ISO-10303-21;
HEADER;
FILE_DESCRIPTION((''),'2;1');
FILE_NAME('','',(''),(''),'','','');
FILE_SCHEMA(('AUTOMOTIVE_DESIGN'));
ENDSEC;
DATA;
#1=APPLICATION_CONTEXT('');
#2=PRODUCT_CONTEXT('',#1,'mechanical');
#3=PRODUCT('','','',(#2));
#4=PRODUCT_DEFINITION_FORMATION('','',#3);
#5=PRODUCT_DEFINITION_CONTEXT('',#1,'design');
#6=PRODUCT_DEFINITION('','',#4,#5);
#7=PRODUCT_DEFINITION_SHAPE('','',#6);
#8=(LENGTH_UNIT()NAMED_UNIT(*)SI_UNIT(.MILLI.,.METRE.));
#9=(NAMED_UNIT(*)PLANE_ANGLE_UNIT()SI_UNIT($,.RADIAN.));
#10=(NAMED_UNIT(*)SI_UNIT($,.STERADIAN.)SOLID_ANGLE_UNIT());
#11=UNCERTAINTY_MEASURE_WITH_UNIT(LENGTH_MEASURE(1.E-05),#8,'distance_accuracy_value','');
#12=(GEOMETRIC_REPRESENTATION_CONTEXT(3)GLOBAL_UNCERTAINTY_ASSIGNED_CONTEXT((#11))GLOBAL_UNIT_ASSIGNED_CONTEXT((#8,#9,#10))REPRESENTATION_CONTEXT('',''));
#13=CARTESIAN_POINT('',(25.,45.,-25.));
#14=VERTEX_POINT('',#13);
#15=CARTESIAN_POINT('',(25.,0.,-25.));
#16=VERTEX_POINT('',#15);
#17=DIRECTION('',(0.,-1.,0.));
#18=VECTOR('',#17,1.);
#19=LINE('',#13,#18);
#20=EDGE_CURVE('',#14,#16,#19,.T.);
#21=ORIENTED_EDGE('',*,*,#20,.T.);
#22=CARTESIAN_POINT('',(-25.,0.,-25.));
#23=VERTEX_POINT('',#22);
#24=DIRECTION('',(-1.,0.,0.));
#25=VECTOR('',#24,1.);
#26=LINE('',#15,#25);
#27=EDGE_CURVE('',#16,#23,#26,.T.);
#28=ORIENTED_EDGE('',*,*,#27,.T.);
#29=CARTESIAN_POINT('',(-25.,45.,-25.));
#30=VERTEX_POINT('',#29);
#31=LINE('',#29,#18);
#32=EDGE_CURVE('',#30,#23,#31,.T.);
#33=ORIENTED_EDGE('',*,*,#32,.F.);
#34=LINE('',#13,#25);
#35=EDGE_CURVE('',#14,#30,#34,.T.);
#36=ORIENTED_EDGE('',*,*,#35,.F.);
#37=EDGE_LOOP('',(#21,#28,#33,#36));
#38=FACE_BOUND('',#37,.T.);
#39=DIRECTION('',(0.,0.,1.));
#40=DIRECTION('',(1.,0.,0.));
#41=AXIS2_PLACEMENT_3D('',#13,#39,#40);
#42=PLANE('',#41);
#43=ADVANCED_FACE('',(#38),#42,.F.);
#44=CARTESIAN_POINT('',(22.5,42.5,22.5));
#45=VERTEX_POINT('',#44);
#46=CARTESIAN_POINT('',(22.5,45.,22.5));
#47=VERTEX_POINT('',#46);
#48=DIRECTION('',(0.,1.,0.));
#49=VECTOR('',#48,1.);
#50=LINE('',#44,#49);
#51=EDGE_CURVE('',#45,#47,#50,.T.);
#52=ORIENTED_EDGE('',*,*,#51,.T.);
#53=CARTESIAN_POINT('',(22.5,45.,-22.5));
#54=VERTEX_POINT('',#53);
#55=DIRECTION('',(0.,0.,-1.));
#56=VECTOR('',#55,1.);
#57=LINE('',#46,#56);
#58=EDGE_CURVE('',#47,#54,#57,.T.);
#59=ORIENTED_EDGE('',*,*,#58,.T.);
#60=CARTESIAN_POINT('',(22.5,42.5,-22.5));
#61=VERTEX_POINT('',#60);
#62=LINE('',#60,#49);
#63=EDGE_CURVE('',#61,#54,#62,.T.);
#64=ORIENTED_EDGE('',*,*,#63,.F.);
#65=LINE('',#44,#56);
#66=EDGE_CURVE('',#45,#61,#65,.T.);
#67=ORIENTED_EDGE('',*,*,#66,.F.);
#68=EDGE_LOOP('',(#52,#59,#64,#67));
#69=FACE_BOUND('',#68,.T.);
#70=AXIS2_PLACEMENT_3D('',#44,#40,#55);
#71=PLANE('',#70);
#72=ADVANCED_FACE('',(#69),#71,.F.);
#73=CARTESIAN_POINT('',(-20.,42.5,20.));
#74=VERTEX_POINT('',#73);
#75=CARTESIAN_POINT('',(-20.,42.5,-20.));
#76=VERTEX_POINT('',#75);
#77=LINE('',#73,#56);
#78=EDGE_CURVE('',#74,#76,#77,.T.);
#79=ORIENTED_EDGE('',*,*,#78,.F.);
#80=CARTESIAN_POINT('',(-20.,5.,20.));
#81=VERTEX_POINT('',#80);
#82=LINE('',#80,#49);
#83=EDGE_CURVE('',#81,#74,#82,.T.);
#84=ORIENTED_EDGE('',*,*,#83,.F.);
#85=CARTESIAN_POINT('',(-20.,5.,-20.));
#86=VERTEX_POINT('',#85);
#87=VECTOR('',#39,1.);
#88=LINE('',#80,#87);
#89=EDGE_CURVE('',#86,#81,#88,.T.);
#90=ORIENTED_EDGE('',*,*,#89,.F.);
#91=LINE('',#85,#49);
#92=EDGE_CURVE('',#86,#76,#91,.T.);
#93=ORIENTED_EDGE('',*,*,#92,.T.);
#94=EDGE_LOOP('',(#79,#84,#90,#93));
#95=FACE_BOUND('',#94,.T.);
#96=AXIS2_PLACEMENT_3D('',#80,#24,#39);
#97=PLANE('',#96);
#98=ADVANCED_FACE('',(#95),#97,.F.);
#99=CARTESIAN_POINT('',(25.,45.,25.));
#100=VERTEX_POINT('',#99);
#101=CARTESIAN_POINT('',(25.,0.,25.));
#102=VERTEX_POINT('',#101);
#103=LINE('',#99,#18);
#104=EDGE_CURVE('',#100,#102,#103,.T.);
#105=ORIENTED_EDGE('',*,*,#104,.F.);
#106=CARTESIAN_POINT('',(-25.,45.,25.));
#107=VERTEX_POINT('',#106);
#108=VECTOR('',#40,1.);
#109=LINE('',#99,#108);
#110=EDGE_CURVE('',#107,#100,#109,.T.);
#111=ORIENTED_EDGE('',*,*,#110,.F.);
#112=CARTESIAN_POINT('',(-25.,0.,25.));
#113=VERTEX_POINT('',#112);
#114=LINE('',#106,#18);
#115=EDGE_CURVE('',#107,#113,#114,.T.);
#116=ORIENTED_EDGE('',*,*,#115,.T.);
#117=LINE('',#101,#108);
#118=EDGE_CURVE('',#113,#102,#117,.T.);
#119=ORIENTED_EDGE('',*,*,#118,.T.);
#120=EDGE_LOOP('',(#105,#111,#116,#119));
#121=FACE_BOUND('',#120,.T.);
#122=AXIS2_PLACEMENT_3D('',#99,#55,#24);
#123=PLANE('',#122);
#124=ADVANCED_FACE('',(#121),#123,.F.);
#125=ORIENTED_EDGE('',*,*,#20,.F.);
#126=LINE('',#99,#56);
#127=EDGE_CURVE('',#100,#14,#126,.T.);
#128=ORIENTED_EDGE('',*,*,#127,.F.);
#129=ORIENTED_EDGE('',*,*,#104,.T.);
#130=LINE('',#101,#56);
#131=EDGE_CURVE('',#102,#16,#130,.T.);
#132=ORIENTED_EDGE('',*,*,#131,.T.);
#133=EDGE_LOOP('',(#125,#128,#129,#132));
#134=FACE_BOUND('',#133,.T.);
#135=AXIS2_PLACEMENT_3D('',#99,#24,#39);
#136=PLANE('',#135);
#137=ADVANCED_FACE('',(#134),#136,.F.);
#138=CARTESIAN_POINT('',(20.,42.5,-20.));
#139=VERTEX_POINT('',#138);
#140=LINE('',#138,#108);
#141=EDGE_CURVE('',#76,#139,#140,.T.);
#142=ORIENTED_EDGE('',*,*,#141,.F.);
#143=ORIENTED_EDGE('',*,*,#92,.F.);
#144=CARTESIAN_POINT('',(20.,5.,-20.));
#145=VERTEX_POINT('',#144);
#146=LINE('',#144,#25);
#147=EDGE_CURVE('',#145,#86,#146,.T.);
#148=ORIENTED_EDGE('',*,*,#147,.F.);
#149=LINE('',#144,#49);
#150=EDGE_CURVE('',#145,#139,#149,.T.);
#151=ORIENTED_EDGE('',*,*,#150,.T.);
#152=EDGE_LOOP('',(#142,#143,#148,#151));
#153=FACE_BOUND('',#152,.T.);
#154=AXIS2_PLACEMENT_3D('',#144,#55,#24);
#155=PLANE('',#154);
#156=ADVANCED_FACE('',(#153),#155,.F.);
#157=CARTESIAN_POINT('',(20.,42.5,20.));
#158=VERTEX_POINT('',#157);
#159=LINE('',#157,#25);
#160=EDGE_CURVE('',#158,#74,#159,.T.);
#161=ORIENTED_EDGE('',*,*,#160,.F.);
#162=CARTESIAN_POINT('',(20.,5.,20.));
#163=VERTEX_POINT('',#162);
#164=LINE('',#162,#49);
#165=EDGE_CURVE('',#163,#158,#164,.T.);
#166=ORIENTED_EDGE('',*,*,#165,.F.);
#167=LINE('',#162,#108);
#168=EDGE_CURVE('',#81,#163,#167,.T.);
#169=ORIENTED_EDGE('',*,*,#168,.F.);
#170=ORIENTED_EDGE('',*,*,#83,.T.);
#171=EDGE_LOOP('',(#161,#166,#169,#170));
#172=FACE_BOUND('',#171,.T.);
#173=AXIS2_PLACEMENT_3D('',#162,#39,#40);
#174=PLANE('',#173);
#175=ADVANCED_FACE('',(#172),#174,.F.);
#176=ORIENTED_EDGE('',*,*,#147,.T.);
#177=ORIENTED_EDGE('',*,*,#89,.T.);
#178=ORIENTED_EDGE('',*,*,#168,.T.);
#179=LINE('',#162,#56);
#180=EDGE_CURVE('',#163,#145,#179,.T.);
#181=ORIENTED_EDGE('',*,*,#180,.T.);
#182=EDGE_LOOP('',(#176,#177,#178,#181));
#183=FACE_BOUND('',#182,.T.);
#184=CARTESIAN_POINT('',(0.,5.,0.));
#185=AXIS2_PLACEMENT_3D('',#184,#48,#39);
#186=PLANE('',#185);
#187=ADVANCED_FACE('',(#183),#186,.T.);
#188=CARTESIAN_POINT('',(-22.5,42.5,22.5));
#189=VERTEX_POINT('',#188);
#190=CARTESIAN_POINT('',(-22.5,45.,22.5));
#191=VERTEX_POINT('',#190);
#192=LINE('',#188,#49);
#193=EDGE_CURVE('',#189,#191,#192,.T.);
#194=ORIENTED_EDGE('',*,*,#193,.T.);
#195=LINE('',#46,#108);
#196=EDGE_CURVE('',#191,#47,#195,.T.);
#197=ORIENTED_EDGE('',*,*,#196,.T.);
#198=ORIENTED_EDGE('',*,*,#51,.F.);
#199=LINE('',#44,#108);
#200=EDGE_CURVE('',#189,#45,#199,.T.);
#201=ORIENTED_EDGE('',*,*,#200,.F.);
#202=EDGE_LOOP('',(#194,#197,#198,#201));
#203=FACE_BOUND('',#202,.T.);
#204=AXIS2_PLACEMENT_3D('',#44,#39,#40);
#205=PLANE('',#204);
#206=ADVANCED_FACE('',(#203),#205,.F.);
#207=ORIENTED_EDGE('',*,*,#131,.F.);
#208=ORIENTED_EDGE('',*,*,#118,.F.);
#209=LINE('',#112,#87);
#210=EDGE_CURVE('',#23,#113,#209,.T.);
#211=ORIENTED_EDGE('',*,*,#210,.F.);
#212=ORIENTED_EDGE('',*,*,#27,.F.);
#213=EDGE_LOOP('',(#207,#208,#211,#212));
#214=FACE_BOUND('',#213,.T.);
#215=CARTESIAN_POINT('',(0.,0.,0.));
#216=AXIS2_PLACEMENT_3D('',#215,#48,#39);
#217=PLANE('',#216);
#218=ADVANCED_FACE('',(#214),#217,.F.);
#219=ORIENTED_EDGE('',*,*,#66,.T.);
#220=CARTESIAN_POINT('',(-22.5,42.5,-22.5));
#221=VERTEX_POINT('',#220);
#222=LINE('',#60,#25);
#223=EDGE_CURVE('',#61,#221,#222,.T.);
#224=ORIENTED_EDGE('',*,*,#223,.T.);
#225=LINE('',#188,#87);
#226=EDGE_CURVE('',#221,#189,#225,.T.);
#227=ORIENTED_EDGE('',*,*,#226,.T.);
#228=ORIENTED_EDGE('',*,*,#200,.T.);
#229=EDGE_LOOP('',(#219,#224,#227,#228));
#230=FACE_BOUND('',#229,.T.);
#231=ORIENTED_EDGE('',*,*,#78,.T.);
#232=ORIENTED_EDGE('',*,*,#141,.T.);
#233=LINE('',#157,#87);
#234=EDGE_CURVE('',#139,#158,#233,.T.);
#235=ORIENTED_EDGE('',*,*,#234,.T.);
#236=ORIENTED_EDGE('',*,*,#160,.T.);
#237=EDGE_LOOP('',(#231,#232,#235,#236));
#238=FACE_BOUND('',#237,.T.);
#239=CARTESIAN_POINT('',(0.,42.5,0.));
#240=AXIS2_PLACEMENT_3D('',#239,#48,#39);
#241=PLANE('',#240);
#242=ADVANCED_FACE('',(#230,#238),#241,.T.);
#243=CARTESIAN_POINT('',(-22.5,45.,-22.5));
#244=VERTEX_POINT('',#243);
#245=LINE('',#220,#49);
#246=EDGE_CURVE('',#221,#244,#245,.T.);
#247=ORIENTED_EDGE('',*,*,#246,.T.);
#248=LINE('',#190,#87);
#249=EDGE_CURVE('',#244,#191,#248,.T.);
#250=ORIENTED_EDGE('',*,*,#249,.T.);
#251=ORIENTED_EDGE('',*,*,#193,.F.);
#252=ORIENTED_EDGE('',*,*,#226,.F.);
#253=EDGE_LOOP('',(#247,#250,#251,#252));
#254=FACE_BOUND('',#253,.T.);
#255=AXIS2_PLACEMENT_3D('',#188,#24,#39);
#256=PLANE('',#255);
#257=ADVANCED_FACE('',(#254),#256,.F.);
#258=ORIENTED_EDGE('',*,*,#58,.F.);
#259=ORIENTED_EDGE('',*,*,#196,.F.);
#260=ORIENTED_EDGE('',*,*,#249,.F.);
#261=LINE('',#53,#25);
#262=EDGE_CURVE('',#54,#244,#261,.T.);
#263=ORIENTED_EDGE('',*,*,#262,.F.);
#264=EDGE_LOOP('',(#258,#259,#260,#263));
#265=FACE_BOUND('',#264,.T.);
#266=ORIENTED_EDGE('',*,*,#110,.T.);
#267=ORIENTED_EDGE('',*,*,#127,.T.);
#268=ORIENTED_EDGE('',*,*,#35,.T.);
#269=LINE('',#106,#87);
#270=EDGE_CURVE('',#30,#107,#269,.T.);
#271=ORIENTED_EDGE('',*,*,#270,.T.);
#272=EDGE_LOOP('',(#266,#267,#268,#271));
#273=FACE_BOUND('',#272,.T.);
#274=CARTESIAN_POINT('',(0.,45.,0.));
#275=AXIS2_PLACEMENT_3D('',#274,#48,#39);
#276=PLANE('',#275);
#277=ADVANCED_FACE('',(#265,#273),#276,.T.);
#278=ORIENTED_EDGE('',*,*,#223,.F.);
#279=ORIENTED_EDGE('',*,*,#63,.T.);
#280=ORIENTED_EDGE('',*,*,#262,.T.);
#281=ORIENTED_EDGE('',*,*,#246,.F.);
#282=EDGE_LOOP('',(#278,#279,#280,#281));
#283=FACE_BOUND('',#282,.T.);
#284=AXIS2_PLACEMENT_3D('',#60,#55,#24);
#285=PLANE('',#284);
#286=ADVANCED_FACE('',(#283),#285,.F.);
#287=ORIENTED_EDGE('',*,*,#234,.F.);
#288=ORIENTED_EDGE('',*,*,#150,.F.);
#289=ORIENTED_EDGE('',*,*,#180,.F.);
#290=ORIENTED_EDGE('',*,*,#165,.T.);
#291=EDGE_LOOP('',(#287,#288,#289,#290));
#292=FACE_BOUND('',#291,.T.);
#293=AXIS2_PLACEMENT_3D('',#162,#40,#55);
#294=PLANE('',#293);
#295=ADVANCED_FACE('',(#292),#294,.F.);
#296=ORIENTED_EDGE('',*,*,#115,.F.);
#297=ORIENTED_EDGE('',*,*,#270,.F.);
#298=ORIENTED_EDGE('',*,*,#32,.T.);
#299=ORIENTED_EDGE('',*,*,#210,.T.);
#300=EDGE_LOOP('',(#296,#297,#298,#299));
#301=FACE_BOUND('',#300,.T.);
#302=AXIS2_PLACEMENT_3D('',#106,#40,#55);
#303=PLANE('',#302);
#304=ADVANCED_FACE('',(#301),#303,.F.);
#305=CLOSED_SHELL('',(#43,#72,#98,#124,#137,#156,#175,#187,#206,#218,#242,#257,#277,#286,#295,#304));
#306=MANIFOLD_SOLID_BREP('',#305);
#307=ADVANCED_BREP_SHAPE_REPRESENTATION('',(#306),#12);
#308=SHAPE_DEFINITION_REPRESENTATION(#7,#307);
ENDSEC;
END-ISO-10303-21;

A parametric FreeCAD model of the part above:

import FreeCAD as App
import Part
import Sketcher
from FreeCAD import Vector
Q = App.Units.Quantity


def add_polygon(sketch, points):
    """Adds a closed chain of lines whose ends are joined by coincident constraints."""
    first, n = sketch.GeometryCount, len(points)
    for a, b in zip(points, points[1:] + points[:1]):
        sketch.addGeometry(Part.LineSegment(App.Vector(*a, 0), App.Vector(*b, 0)), False)
    for i in range(n):
        sketch.addConstraint(Sketcher.Constraint("Coincident", first + i, 2, first + (i + 1) % n, 1))

doc = App.newDocument("Part")
body = doc.addObject("PartDesign::Body", "Body")

# Sketch on XZ plane
sketch1 = body.newObject("Sketcher::SketchObject", "Sketch")
sketch1.AttachmentSupport = (doc.getObject("XZ_Plane"), [""])
sketch1.MapMode = "FlatFace"
add_polygon(sketch1, [(-25, -25), (-25, 25), (25, 25), (25, -25)])  # lines 0-3
sketch1.addConstraint(Sketcher.Constraint("Vertical", 0))
sketch1.addConstraint(Sketcher.Constraint("Horizontal", 1))
sketch1.addConstraint(Sketcher.Constraint("Vertical", 2))
sketch1.addConstraint(Sketcher.Constraint("Horizontal", 3))
sketch1.addConstraint(Sketcher.Constraint("Symmetric", 0, 2, 2, 2, -1, 1))
sketch1.addConstraint(Sketcher.Constraint("Equal", 3, 0))
sketch1.addConstraint(Sketcher.Constraint("DistanceX", 1, 1, 1, 2, Q("50 mm")))
pad1 = body.newObject("PartDesign::Pad", "Pad")
pad1.Profile = sketch1
pad1.Length = 45
pad1.Reversed = True

# Sketch on XZ plane
sketch2 = body.newObject("Sketcher::SketchObject", "Sketch001")
sketch2.AttachmentSupport = (doc.getObject("XZ_Plane"), [""])
sketch2.MapMode = "FlatFace"
sketch2.AttachmentOffset = App.Placement(Vector(0, 0, -45), App.Rotation())
add_polygon(sketch2, [(-20, -20), (-20, 20), (20, 20), (20, -20)])  # lines 0-3
sketch2.addConstraint(Sketcher.Constraint("Vertical", 0))
sketch2.addConstraint(Sketcher.Constraint("Horizontal", 1))
sketch2.addConstraint(Sketcher.Constraint("Vertical", 2))
sketch2.addConstraint(Sketcher.Constraint("Horizontal", 3))
sketch2.addConstraint(Sketcher.Constraint("Symmetric", 0, 2, 2, 2, -1, 1))
sketch2.addConstraint(Sketcher.Constraint("Equal", 3, 0))
sketch2.addConstraint(Sketcher.Constraint("DistanceX", 1, 1, 1, 2, Q("40 mm")))
pocket1 = body.newObject("PartDesign::Pocket", "Pocket")
pocket1.Profile = sketch2
pocket1.Length = 40
pocket1.Reversed = True

# Sketch on XZ plane
sketch3 = body.newObject("Sketcher::SketchObject", "Sketch002")
sketch3.AttachmentSupport = (doc.getObject("XZ_Plane"), [""])
sketch3.MapMode = "FlatFace"
sketch3.AttachmentOffset = App.Placement(Vector(0, 0, -45), App.Rotation())
add_polygon(sketch3, [(-22.5, -22.5), (-22.5, 22.5), (22.5, 22.5), (22.5, -22.5)])  # lines 0-3
sketch3.addConstraint(Sketcher.Constraint("Vertical", 0))
sketch3.addConstraint(Sketcher.Constraint("Horizontal", 1))
sketch3.addConstraint(Sketcher.Constraint("Vertical", 2))
sketch3.addConstraint(Sketcher.Constraint("Horizontal", 3))
sketch3.addConstraint(Sketcher.Constraint("Symmetric", 0, 2, 2, 2, -1, 1))
sketch3.addConstraint(Sketcher.Constraint("Equal", 3, 0))
sketch3.addConstraint(Sketcher.Constraint("DistanceX", 1, 1, 1, 2, Q("45 mm")))
pocket2 = body.newObject("PartDesign::Pocket", "Pocket001")
pocket2.Profile = sketch3
pocket2.Length = 2.5
pocket2.Reversed = True

doc.recompute()
